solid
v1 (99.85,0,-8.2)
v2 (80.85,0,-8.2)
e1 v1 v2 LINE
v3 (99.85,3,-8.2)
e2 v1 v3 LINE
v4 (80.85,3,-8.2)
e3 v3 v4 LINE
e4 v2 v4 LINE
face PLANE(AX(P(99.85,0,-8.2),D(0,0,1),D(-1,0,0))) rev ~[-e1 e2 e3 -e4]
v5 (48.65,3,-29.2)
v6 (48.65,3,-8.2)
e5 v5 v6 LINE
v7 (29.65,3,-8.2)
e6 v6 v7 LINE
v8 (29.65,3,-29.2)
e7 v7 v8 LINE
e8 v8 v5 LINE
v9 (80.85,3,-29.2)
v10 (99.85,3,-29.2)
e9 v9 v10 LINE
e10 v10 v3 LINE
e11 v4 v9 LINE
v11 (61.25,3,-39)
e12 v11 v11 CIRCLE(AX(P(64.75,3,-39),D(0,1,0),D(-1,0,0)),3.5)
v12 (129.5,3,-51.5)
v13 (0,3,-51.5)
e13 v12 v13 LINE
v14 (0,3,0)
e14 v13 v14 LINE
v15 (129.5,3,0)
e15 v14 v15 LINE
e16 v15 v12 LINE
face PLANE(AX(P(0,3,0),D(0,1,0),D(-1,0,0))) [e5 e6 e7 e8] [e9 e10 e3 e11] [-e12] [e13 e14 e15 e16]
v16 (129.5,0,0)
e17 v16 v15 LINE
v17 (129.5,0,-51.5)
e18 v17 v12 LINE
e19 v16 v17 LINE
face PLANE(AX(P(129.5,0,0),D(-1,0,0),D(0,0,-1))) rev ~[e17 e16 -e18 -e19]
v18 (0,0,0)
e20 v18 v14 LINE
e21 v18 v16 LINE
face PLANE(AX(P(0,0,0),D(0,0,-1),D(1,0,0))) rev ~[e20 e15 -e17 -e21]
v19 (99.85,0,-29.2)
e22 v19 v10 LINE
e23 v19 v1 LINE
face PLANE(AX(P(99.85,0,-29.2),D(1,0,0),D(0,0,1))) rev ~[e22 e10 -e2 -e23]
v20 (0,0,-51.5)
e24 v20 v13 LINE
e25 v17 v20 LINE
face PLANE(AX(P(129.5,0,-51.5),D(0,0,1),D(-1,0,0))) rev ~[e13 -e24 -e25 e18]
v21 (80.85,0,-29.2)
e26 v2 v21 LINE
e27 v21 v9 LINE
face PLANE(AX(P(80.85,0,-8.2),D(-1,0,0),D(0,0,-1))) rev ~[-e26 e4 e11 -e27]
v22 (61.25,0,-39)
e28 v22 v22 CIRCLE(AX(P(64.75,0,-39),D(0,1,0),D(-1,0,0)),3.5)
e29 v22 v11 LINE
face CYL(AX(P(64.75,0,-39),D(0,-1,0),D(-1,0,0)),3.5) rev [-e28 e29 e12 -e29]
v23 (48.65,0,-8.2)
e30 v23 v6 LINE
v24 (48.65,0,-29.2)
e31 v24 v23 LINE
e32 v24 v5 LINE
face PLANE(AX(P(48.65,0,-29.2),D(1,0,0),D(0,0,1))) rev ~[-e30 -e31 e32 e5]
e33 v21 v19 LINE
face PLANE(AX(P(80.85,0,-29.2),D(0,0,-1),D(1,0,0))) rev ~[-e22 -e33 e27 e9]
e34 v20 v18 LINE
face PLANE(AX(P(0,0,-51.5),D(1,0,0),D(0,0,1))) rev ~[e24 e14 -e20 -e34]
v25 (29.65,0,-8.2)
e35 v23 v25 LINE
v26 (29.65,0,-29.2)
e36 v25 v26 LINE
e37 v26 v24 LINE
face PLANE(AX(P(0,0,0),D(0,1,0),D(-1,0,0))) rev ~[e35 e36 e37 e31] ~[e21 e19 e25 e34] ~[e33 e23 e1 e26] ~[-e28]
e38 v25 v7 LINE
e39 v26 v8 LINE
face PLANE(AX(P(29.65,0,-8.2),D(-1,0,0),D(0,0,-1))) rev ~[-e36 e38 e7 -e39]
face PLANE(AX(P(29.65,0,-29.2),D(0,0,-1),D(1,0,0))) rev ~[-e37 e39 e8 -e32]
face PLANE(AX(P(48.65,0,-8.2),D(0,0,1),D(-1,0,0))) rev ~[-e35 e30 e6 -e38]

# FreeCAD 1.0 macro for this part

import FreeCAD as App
import Part
import Sketcher

doc = App.newDocument("Part")
body = doc.addObject("PartDesign::Body", "Body")

# Sketch on XZ plane
sketch1 = doc.addObject("Sketcher::SketchObject", "Sketch")
body.addObject(sketch1)
sketch1.AttachmentSupport = (doc.XZ_Plane, [""])
sketch1.MapMode = "FlatFace"
sketch1.addGeometry(Part.LineSegment(App.Vector(0, -51.5, 0), App.Vector(0, 0, 0)), False)
sketch1.addGeometry(Part.LineSegment(App.Vector(0, 0, 0), App.Vector(129.5, 0, 0)), False)
sketch1.addGeometry(Part.LineSegment(App.Vector(129.5, 0, 0), App.Vector(129.5, -51.5, 0)), False)
sketch1.addGeometry(Part.LineSegment(App.Vector(129.5, -51.5, 0), App.Vector(0, -51.5, 0)), False)
sketch1.addGeometry(Part.Circle(App.Vector(64.8, -39, 0), App.Vector(0, 0, 1), 3.5), False)
sketch1.addGeometry(Part.LineSegment(App.Vector(80.8, -8.2, 0), App.Vector(80.8, -29.2, 0)), False)
sketch1.addGeometry(Part.LineSegment(App.Vector(80.8, -29.2, 0), App.Vector(99.8, -29.2, 0)), False)
sketch1.addGeometry(Part.LineSegment(App.Vector(99.8, -29.2, 0), App.Vector(99.8, -8.2, 0)), False)
sketch1.addGeometry(Part.LineSegment(App.Vector(99.8, -8.2, 0), App.Vector(80.8, -8.2, 0)), False)
sketch1.addGeometry(Part.LineSegment(App.Vector(29.6, -8.2, 0), App.Vector(29.6, -29.2, 0)), False)
sketch1.addGeometry(Part.LineSegment(App.Vector(29.6, -29.2, 0), App.Vector(48.6, -29.2, 0)), False)
sketch1.addGeometry(Part.LineSegment(App.Vector(48.6, -29.2, 0), App.Vector(48.6, -8.2, 0)), False)
sketch1.addGeometry(Part.LineSegment(App.Vector(48.6, -8.2, 0), App.Vector(29.6, -8.2, 0)), False)
sketch1.addConstraint(Sketcher.Constraint("Coincident", 0, 2, 1, 1))
sketch1.addConstraint(Sketcher.Constraint("Coincident", 1, 2, 2, 1))
sketch1.addConstraint(Sketcher.Constraint("Coincident", 2, 2, 3, 1))
sketch1.addConstraint(Sketcher.Constraint("Coincident", 3, 2, 0, 1))
sketch1.addConstraint(Sketcher.Constraint("Coincident", 5, 2, 6, 1))
sketch1.addConstraint(Sketcher.Constraint("Coincident", 6, 2, 7, 1))
sketch1.addConstraint(Sketcher.Constraint("Coincident", 7, 2, 8, 1))
sketch1.addConstraint(Sketcher.Constraint("Coincident", 8, 2, 5, 1))
sketch1.addConstraint(Sketcher.Constraint("Coincident", 9, 2, 10, 1))
sketch1.addConstraint(Sketcher.Constraint("Coincident", 10, 2, 11, 1))
sketch1.addConstraint(Sketcher.Constraint("Coincident", 11, 2, 12, 1))
sketch1.addConstraint(Sketcher.Constraint("Coincident", 12, 2, 9, 1))
sketch1.addConstraint(Sketcher.Constraint("Vertical", 0))
sketch1.addConstraint(Sketcher.Constraint("Horizontal", 1))
sketch1.addConstraint(Sketcher.Constraint("Vertical", 2))
sketch1.addConstraint(Sketcher.Constraint("Horizontal", 3))
sketch1.addConstraint(Sketcher.Constraint("Vertical", 5))
sketch1.addConstraint(Sketcher.Constraint("Horizontal", 6))
sketch1.addConstraint(Sketcher.Constraint("Vertical", 7))
sketch1.addConstraint(Sketcher.Constraint("Horizontal", 8))
sketch1.addConstraint(Sketcher.Constraint("Vertical", 9))
sketch1.addConstraint(Sketcher.Constraint("Horizontal", 10))
sketch1.addConstraint(Sketcher.Constraint("Vertical", 11))
sketch1.addConstraint(Sketcher.Constraint("Horizontal", 12))
sketch1.addConstraint(Sketcher.Constraint("Coincident", 0, 2, -1, 1))
sketch1.addConstraint(Sketcher.Constraint("Horizontal", 6, 2, 9, 2))
sketch1.addConstraint(Sketcher.Constraint("Horizontal", 8, 2, 11, 2))
sketch1.addConstraint(Sketcher.Constraint("Equal", 8, 10))
sketch1.addConstraint(Sketcher.Constraint("Diameter", 4, 7.0))
sketch1.addConstraint(Sketcher.Constraint("DistanceX", 6, 1, 6, 2, 19.0))
sketch1.addConstraint(Sketcher.Constraint("DistanceY", 5, 2, 5, 1, 21.0))
sketch1.addConstraint(Sketcher.Constraint("DistanceX", 1, 1, 1, 2, 129.5))
sketch1.addConstraint(Sketcher.Constraint("DistanceY", 0, 1, 0, 2, 51.5))
sketch1.addConstraint(Sketcher.Constraint("DistanceY", 7, 2, -1, 1, 8.2))
sketch1.addConstraint(Sketcher.Constraint("DistanceX", 10, 2, 5, 2, 32.2))
sketch1.addConstraint(Sketcher.Constraint("DistanceY", 4, 3, -1, 1, 39.0))
sketch1.addConstraint(Sketcher.Constraint("DistanceX", 4, 3, 5, 2, 16.1))
sketch1.addConstraint(Sketcher.Constraint("DistanceX", -1, 1, 4, 3, 64.75))
pad1 = doc.addObject("PartDesign::Pad", "Pad")
body.addObject(pad1)
pad1.Profile = sketch1
pad1.Length = 3
pad1.Reversed = True

doc.recompute()
